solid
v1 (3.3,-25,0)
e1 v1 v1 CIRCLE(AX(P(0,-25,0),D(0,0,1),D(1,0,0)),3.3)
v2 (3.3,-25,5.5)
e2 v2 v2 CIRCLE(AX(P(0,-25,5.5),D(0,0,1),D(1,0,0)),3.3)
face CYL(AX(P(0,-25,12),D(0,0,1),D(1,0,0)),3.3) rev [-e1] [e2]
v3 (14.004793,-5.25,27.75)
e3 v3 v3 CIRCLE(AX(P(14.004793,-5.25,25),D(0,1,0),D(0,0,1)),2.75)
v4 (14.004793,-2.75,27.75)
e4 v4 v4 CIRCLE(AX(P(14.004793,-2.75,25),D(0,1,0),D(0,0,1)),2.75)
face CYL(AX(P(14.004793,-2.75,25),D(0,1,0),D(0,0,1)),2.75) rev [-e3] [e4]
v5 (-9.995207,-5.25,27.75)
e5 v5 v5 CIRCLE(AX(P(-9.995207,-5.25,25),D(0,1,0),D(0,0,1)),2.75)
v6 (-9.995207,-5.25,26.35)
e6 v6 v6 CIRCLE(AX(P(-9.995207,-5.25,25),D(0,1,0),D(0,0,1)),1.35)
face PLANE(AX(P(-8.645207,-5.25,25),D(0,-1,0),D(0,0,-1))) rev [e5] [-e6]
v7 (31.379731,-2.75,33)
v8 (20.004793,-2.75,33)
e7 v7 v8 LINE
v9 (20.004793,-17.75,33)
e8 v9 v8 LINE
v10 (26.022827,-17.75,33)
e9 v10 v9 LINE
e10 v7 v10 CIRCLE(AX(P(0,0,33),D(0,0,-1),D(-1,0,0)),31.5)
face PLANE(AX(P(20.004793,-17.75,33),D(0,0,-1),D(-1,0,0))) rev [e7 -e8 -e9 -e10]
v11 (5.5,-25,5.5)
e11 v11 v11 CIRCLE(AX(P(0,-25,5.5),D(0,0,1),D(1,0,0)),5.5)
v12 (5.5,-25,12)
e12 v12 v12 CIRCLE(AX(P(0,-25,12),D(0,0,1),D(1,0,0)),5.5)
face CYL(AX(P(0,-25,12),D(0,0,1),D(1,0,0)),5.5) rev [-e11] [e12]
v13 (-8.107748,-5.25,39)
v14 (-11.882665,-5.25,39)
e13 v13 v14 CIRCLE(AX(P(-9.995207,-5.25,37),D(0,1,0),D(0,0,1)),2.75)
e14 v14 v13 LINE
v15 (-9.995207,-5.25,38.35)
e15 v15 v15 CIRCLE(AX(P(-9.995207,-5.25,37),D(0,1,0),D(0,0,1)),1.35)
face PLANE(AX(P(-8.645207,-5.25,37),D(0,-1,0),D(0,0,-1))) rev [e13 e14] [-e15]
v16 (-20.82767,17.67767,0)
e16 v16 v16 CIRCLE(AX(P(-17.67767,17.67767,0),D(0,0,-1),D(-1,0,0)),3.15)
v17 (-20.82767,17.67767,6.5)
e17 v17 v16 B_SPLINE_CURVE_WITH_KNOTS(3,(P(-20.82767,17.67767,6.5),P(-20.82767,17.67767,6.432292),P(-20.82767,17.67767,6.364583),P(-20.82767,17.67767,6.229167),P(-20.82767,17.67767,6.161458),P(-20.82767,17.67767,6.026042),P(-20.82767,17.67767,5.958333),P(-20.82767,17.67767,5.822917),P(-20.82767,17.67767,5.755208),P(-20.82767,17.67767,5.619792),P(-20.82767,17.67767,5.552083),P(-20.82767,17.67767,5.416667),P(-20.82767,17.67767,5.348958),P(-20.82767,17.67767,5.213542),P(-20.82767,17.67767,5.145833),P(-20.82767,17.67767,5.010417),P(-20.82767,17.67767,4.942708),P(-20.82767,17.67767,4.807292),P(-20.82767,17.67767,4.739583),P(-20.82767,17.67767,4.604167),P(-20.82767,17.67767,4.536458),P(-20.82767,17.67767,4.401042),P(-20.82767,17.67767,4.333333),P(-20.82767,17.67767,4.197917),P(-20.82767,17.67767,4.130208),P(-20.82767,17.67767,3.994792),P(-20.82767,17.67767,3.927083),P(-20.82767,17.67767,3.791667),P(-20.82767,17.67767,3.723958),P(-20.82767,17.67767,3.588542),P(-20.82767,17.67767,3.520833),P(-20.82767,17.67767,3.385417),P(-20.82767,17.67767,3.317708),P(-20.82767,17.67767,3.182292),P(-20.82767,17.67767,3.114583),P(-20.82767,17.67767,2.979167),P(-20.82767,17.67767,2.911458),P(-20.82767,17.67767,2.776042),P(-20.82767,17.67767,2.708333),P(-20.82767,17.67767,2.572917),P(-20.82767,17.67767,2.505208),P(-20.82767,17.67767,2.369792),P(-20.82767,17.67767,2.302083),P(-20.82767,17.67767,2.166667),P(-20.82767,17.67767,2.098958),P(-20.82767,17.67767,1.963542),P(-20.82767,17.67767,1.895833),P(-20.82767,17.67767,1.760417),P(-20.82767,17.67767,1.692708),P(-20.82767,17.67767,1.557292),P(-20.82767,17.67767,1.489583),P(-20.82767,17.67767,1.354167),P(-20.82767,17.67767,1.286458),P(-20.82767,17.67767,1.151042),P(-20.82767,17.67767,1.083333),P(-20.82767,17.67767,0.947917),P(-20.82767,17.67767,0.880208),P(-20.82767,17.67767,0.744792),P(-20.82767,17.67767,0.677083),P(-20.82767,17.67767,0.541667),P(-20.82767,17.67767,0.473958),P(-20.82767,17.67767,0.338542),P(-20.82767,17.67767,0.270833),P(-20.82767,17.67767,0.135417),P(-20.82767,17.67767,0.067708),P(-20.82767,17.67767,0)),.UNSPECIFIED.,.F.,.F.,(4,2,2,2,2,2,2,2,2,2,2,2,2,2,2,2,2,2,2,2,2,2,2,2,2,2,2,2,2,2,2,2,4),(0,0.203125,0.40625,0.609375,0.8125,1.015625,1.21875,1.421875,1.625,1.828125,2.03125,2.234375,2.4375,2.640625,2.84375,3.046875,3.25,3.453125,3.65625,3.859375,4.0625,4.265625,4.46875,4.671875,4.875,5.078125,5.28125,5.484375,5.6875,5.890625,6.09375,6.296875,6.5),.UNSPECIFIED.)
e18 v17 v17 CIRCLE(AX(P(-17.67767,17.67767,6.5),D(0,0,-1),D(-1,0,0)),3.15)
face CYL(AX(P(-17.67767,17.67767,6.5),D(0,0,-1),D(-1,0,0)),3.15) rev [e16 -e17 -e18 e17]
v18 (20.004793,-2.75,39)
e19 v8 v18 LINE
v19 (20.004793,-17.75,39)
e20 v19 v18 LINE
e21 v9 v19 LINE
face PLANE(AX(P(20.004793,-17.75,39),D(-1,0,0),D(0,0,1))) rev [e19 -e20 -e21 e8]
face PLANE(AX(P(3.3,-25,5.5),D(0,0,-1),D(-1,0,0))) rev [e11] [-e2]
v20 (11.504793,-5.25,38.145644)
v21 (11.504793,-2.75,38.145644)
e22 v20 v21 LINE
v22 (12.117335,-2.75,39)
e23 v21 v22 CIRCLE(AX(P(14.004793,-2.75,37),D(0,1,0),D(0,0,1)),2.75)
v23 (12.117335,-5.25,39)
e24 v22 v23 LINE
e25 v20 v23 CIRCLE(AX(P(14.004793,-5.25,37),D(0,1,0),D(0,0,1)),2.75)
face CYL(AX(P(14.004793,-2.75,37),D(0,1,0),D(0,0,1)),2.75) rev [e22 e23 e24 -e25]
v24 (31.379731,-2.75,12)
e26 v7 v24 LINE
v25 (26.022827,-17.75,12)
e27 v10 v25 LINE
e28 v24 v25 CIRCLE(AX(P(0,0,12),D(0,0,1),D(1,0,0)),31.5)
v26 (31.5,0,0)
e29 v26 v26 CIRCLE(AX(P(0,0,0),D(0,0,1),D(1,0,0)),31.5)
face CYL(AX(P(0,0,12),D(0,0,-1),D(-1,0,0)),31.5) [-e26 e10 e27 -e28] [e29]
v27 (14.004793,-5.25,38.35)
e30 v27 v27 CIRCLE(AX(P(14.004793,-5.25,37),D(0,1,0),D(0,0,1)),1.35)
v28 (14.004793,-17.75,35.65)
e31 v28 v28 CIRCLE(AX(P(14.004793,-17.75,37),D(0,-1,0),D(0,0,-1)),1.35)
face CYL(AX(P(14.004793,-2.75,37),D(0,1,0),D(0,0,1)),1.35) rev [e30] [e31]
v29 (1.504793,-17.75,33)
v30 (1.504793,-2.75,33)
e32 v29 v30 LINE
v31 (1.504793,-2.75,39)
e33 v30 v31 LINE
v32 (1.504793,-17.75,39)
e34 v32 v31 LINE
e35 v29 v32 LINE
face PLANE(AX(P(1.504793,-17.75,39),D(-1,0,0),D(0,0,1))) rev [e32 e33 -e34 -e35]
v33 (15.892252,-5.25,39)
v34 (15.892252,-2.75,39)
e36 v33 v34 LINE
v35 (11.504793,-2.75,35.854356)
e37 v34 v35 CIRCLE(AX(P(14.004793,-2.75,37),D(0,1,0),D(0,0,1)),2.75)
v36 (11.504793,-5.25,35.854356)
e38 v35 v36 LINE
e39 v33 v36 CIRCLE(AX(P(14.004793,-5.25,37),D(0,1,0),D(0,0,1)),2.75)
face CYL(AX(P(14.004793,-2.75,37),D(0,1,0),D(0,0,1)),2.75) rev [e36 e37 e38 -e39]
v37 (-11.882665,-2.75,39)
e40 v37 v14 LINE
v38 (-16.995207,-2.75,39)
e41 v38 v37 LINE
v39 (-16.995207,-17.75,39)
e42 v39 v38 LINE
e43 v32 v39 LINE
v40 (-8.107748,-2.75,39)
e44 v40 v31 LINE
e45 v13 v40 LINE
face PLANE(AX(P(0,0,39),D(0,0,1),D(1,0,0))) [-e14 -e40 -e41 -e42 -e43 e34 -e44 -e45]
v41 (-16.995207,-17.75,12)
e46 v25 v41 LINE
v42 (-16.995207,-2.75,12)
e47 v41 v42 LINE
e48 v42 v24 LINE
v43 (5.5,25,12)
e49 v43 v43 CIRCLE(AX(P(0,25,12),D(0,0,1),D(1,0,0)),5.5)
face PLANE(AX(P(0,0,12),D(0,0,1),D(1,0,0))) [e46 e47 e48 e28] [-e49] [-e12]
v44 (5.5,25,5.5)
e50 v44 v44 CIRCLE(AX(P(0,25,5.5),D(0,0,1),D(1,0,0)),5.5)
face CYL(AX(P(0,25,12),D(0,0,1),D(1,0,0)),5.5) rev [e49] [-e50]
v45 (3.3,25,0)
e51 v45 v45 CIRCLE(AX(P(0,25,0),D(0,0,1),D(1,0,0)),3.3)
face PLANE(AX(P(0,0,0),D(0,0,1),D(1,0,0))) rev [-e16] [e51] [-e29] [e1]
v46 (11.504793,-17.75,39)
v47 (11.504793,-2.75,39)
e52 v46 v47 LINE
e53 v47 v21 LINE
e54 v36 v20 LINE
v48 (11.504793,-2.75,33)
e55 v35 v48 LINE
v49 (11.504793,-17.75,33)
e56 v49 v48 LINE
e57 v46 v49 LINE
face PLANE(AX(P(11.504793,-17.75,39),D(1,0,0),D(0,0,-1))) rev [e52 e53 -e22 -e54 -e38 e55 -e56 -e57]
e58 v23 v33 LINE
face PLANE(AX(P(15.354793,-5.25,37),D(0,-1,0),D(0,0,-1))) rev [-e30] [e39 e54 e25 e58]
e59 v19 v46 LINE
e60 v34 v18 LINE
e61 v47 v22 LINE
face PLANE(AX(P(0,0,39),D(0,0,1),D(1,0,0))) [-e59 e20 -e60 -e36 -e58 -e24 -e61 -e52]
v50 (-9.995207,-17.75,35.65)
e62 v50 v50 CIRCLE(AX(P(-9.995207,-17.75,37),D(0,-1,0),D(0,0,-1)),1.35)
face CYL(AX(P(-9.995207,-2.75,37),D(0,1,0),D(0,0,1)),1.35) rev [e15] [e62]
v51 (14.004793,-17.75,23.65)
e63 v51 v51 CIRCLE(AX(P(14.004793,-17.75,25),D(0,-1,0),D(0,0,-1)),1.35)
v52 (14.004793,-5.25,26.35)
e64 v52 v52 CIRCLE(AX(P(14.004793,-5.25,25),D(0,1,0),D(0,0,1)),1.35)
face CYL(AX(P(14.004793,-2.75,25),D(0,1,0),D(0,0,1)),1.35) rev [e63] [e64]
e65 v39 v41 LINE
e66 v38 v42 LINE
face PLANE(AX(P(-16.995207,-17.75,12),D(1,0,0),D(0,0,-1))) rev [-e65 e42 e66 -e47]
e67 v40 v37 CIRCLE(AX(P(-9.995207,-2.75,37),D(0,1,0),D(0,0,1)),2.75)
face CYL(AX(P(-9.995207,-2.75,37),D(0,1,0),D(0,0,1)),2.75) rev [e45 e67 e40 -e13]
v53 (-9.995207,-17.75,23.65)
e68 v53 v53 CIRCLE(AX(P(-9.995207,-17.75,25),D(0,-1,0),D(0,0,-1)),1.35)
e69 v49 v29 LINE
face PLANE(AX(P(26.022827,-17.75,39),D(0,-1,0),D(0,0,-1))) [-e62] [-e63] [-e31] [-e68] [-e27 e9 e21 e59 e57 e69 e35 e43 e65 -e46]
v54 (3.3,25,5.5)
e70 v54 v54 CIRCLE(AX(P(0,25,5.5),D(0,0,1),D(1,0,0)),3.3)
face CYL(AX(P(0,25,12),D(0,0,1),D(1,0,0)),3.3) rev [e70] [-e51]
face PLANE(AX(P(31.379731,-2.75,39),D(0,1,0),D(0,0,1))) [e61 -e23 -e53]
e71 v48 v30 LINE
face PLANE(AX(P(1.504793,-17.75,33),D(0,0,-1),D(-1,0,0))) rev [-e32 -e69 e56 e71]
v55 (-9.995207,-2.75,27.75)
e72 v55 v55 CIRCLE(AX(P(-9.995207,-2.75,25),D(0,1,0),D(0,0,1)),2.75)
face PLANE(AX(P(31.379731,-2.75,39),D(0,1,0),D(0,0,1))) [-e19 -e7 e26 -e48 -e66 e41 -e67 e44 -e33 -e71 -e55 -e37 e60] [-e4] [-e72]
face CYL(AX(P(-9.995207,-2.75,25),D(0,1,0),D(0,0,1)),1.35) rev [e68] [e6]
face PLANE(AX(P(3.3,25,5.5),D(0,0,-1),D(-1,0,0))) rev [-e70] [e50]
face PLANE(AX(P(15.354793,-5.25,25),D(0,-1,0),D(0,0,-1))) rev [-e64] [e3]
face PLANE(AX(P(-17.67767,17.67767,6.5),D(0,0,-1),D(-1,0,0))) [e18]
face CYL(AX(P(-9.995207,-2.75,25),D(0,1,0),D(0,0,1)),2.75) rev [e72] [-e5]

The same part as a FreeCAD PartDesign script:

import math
import FreeCAD as App
import Part
import Sketcher
Q = App.Units.Quantity

doc = App.newDocument("Part")
body = doc.addObject("PartDesign::Body", "Body")

sketch1 = body.newObject("Sketcher::SketchObject", "Sketch")
sketch1.AttachmentSupport = (doc.getObject("XY_Plane"), [""])
sketch1.MapMode = "FlatFace"
sketch1.addGeometry(Part.Circle(App.Vector(0, 0, 0), App.Vector(0, 0, 1), 31.5), False)
sketch1.addConstraint([
    Sketcher.Constraint("Coincident", 0, 3, -1, 1),
    Sketcher.Constraint("Diameter", 0, Q("63 mm")),
])
pad1 = body.newObject("PartDesign::Pad", "Pad")
pad1.Profile = sketch1
pad1.Length = 12

sketch2 = body.newObject("Sketcher::SketchObject", "Sketch001")
sketch2.AttachmentSupport = (doc.getObject("XY_Plane"), [""])
sketch2.MapMode = "FlatFace"
sketch2.AttachmentOffset = App.Placement(App.Vector(0, 0, 12), App.Rotation())
sketch2.addGeometry([
    Part.Circle(App.Vector(0, 25, 0), App.Vector(0, 0, 1), 3.3),
    Part.Circle(App.Vector(0, -25, 0), App.Vector(0, 0, 1), 3.3),
], False)
sketch2.addConstraint([
    Sketcher.Constraint("Equal", 0, 1),
    Sketcher.Constraint("Symmetric", 0, 3, 1, 3, -1, 1),
    Sketcher.Constraint("PointOnObject", 0, 3, -2),
    Sketcher.Constraint("Diameter", 0, Q("6.6 mm")),
    Sketcher.Constraint("DistanceY", -1, 1, 0, 3, Q("25 mm")),
])
doc.recompute()
hole = body.newObject("PartDesign::Hole", "Hole")
hole.Profile = sketch2
hole.ThreadType = "None"
hole.Diameter = 6.6
hole.DepthType = "ThroughAll"
hole.HoleCutType = "Counterbore"
hole.HoleCutDiameter = 11
hole.HoleCutDepth = 6.5

sketch3 = body.newObject("Sketcher::SketchObject", "Sketch002")
sketch3.AttachmentSupport = (doc.getObject("XY_Plane"), [""])
sketch3.MapMode = "FlatFace"
sketch3.addGeometry(Part.Circle(App.Vector(-17.67767, 17.67767, 0), App.Vector(0, 0, 1), 3.15), False)
sketch3.addConstraint([
    Sketcher.Constraint("Diameter", 0, Q("6.3 mm")),
    Sketcher.Constraint("DistanceX", 0, 3, -1, 1, Q("17.67767 mm")),
    Sketcher.Constraint("DistanceY", -1, 1, 0, 3, Q("17.67767 mm")),
])
pocket1 = body.newObject("PartDesign::Pocket", "Pocket")
pocket1.Profile = sketch3
pocket1.Length = 6.5
pocket1.Reversed = True

sketch4 = body.newObject("Sketcher::SketchObject", "Sketch003")
sketch4.AttachmentSupport = (doc.getObject("XY_Plane"), [""])
sketch4.MapMode = "FlatFace"
sketch4.AttachmentOffset = App.Placement(App.Vector(0, 0, 12), App.Rotation())
sketch4.addGeometry([
    Part.LineSegment(App.Vector(-31.379731, -2.75, 0), App.Vector(31.379731, -2.75, 0)),
    Part.ArcOfCircle(Part.Circle(App.Vector(0, 0, 0), App.Vector(0, 0, 1), 31.5), math.radians(-34.297643), math.radians(-5.008388)),
    Part.LineSegment(App.Vector(26.022827, -17.75, 0), App.Vector(-26.022827, -17.75, 0)),
    Part.ArcOfCircle(Part.Circle(App.Vector(0, 0, 0), App.Vector(0, 0, 1), 31.5), math.radians(-174.991612), math.radians(-145.702357)),
], False)
sketch4.addConstraint([
    Sketcher.Constraint("Coincident", 0, 2, 1, 2),
    Sketcher.Constraint("Coincident", 1, 1, 2, 1),
    Sketcher.Constraint("Coincident", 2, 2, 3, 2),
    Sketcher.Constraint("Coincident", 3, 1, 0, 1),
    Sketcher.Constraint("Horizontal", 0),
    Sketcher.Constraint("Horizontal", 2),
    Sketcher.Constraint("Coincident", 1, 3, -1, 1),
    Sketcher.Constraint("Coincident", 3, 3, -1, 1),
    Sketcher.Constraint("Equal", 1, 3),
    Sketcher.Constraint("Radius", 1, Q("31.5 mm")),
    Sketcher.Constraint("DistanceY", 1, 1, 0, 2, Q("15 mm")),
    Sketcher.Constraint("DistanceY", 0, 2, -1, 1, Q("2.75 mm")),
])
pad2 = body.newObject("PartDesign::Pad", "Pad001")
pad2.Profile = sketch4
pad2.Length = 27

sketch5 = body.newObject("Sketcher::SketchObject", "Sketch004")
sketch5.AttachmentSupport = (doc.getObject("XZ_Plane"), [""])
sketch5.MapMode = "FlatFace"
sketch5.AttachmentOffset = App.Placement(App.Vector(0, 0, 2.75), App.Rotation())
sketch5.addGeometry([
    Part.Circle(App.Vector(-9.995207, 25, 0), App.Vector(0, 0, 1), 1.35),
    Part.Circle(App.Vector(14.004793, 37, 0), App.Vector(0, 0, 1), 1.35),
    Part.Circle(App.Vector(-9.995207, 37, 0), App.Vector(0, 0, 1), 1.35),
    Part.Circle(App.Vector(14.004793, 25, 0), App.Vector(0, 0, 1), 1.35),
], False)
sketch5.addConstraint([
    Sketcher.Constraint("Equal", 0, 1),
    Sketcher.Constraint("Equal", 1, 2),
    Sketcher.Constraint("Equal", 2, 3),
    Sketcher.Constraint("Horizontal", 1, 3, 2, 3),
    Sketcher.Constraint("Horizontal", 0, 3, 3, 3),
    Sketcher.Constraint("Vertical", 0, 3, 2, 3),
    Sketcher.Constraint("Vertical", 1, 3, 3, 3),
    Sketcher.Constraint("Diameter", 0, Q("2.7 mm")),
    Sketcher.Constraint("DistanceY", -1, 1, 0, 3, Q("25 mm")),
    Sketcher.Constraint("DistanceY", -1, 1, 1, 3, Q("37 mm")),
    Sketcher.Constraint("DistanceX", 0, 3, 1, 3, Q("24 mm")),
    Sketcher.Constraint("DistanceX", 0, 3, -1, 1, Q("9.995207 mm")),
])
doc.recompute()
hole2 = body.newObject("PartDesign::Hole", "Hole001")
hole2.Profile = sketch5
hole2.ThreadType = "None"
hole2.Diameter = 2.7
hole2.DepthType = "ThroughAll"
hole2.HoleCutType = "Counterbore"
hole2.HoleCutDiameter = 5.5
hole2.HoleCutDepth = 2.5
hole2.Reversed = True

sketch6 = body.newObject("Sketcher::SketchObject", "Sketch005")
sketch6.AttachmentSupport = (doc.getObject("XZ_Plane"), [""])
sketch6.MapMode = "FlatFace"
sketch6.AttachmentOffset = App.Placement(App.Vector(0, 0, 2.75), App.Rotation())
sketch6.addGeometry([
    Part.LineSegment(App.Vector(-31.379731, 12, 0), App.Vector(-31.379731, 39, 0)),
    Part.LineSegment(App.Vector(-31.379731, 39, 0), App.Vector(-16.995207, 39, 0)),
    Part.LineSegment(App.Vector(-16.995207, 39, 0), App.Vector(-16.995207, 12, 0)),
    Part.LineSegment(App.Vector(-16.995207, 12, 0), App.Vector(-31.379731, 12, 0)),
    Part.LineSegment(App.Vector(1.504793, 33, 0), App.Vector(1.504793, 39, 0)),
    Part.LineSegment(App.Vector(1.504793, 39, 0), App.Vector(11.504793, 39, 0)),
    Part.LineSegment(App.Vector(11.504793, 39, 0), App.Vector(11.504793, 33, 0)),
    Part.LineSegment(App.Vector(11.504793, 33, 0), App.Vector(1.504793, 33, 0)),
    Part.LineSegment(App.Vector(20.004793, 33, 0), App.Vector(20.004793, 39, 0)),
    Part.LineSegment(App.Vector(20.004793, 39, 0), App.Vector(31.379731, 39, 0)),
    Part.LineSegment(App.Vector(31.379731, 39, 0), App.Vector(31.379731, 33, 0)),
    Part.LineSegment(App.Vector(31.379731, 33, 0), App.Vector(20.004793, 33, 0)),
], False)
sketch6.addConstraint([
    Sketcher.Constraint("Coincident", 0, 2, 1, 1),
    Sketcher.Constraint("Coincident", 1, 2, 2, 1),
    Sketcher.Constraint("Coincident", 2, 2, 3, 1),
    Sketcher.Constraint("Coincident", 3, 2, 0, 1),
    Sketcher.Constraint("Coincident", 4, 2, 5, 1),
    Sketcher.Constraint("Coincident", 5, 2, 6, 1),
    Sketcher.Constraint("Coincident", 6, 2, 7, 1),
    Sketcher.Constraint("Coincident", 7, 2, 4, 1),
    Sketcher.Constraint("Coincident", 8, 2, 9, 1),
    Sketcher.Constraint("Coincident", 9, 2, 10, 1),
    Sketcher.Constraint("Coincident", 10, 2, 11, 1),
    Sketcher.Constraint("Coincident", 11, 2, 8, 1),
    Sketcher.Constraint("Vertical", 0),
    Sketcher.Constraint("Horizontal", 1),
    Sketcher.Constraint("Vertical", 2),
    Sketcher.Constraint("Horizontal", 3),
    Sketcher.Constraint("Vertical", 4),
    Sketcher.Constraint("Horizontal", 5),
    Sketcher.Constraint("Vertical", 6),
    Sketcher.Constraint("Horizontal", 7),
    Sketcher.Constraint("Vertical", 8),
    Sketcher.Constraint("Horizontal", 9),
    Sketcher.Constraint("Vertical", 10),
    Sketcher.Constraint("Horizontal", 11),
    Sketcher.Constraint("Symmetric", 0, 2, 9, 2, -2),
    Sketcher.Constraint("Horizontal", 1, 2, 4, 2),
    Sketcher.Constraint("Horizontal", 7, 2, 10, 2),
    Sketcher.Constraint("DistanceX", 5, 1, 5, 2, Q("10 mm")),
    Sketcher.Constraint("DistanceY", 0, 1, 0, 2, Q("27 mm")),
    Sketcher.Constraint("DistanceY", 4, 1, 4, 2, Q("6 mm")),
    Sketcher.Constraint("DistanceY", -1, 1, 0, 2, Q("39 mm")),
    Sketcher.Constraint("DistanceX", 1, 2, 8, 2, Q("37 mm")),
    Sketcher.Constraint("DistanceX", 1, 2, 4, 2, Q("18.5 mm")),
    Sketcher.Constraint("DistanceX", 1, 1, 1, 2, Q("14.384524 mm")),
    Sketcher.Constraint("DistanceX", 9, 1, 9, 2, Q("11.374938 mm")),
])
pocket2 = body.newObject("PartDesign::Pocket", "Pocket001")
pocket2.Profile = sketch6
pocket2.Length = 15
pocket2.Reversed = True

doc.recompute()
